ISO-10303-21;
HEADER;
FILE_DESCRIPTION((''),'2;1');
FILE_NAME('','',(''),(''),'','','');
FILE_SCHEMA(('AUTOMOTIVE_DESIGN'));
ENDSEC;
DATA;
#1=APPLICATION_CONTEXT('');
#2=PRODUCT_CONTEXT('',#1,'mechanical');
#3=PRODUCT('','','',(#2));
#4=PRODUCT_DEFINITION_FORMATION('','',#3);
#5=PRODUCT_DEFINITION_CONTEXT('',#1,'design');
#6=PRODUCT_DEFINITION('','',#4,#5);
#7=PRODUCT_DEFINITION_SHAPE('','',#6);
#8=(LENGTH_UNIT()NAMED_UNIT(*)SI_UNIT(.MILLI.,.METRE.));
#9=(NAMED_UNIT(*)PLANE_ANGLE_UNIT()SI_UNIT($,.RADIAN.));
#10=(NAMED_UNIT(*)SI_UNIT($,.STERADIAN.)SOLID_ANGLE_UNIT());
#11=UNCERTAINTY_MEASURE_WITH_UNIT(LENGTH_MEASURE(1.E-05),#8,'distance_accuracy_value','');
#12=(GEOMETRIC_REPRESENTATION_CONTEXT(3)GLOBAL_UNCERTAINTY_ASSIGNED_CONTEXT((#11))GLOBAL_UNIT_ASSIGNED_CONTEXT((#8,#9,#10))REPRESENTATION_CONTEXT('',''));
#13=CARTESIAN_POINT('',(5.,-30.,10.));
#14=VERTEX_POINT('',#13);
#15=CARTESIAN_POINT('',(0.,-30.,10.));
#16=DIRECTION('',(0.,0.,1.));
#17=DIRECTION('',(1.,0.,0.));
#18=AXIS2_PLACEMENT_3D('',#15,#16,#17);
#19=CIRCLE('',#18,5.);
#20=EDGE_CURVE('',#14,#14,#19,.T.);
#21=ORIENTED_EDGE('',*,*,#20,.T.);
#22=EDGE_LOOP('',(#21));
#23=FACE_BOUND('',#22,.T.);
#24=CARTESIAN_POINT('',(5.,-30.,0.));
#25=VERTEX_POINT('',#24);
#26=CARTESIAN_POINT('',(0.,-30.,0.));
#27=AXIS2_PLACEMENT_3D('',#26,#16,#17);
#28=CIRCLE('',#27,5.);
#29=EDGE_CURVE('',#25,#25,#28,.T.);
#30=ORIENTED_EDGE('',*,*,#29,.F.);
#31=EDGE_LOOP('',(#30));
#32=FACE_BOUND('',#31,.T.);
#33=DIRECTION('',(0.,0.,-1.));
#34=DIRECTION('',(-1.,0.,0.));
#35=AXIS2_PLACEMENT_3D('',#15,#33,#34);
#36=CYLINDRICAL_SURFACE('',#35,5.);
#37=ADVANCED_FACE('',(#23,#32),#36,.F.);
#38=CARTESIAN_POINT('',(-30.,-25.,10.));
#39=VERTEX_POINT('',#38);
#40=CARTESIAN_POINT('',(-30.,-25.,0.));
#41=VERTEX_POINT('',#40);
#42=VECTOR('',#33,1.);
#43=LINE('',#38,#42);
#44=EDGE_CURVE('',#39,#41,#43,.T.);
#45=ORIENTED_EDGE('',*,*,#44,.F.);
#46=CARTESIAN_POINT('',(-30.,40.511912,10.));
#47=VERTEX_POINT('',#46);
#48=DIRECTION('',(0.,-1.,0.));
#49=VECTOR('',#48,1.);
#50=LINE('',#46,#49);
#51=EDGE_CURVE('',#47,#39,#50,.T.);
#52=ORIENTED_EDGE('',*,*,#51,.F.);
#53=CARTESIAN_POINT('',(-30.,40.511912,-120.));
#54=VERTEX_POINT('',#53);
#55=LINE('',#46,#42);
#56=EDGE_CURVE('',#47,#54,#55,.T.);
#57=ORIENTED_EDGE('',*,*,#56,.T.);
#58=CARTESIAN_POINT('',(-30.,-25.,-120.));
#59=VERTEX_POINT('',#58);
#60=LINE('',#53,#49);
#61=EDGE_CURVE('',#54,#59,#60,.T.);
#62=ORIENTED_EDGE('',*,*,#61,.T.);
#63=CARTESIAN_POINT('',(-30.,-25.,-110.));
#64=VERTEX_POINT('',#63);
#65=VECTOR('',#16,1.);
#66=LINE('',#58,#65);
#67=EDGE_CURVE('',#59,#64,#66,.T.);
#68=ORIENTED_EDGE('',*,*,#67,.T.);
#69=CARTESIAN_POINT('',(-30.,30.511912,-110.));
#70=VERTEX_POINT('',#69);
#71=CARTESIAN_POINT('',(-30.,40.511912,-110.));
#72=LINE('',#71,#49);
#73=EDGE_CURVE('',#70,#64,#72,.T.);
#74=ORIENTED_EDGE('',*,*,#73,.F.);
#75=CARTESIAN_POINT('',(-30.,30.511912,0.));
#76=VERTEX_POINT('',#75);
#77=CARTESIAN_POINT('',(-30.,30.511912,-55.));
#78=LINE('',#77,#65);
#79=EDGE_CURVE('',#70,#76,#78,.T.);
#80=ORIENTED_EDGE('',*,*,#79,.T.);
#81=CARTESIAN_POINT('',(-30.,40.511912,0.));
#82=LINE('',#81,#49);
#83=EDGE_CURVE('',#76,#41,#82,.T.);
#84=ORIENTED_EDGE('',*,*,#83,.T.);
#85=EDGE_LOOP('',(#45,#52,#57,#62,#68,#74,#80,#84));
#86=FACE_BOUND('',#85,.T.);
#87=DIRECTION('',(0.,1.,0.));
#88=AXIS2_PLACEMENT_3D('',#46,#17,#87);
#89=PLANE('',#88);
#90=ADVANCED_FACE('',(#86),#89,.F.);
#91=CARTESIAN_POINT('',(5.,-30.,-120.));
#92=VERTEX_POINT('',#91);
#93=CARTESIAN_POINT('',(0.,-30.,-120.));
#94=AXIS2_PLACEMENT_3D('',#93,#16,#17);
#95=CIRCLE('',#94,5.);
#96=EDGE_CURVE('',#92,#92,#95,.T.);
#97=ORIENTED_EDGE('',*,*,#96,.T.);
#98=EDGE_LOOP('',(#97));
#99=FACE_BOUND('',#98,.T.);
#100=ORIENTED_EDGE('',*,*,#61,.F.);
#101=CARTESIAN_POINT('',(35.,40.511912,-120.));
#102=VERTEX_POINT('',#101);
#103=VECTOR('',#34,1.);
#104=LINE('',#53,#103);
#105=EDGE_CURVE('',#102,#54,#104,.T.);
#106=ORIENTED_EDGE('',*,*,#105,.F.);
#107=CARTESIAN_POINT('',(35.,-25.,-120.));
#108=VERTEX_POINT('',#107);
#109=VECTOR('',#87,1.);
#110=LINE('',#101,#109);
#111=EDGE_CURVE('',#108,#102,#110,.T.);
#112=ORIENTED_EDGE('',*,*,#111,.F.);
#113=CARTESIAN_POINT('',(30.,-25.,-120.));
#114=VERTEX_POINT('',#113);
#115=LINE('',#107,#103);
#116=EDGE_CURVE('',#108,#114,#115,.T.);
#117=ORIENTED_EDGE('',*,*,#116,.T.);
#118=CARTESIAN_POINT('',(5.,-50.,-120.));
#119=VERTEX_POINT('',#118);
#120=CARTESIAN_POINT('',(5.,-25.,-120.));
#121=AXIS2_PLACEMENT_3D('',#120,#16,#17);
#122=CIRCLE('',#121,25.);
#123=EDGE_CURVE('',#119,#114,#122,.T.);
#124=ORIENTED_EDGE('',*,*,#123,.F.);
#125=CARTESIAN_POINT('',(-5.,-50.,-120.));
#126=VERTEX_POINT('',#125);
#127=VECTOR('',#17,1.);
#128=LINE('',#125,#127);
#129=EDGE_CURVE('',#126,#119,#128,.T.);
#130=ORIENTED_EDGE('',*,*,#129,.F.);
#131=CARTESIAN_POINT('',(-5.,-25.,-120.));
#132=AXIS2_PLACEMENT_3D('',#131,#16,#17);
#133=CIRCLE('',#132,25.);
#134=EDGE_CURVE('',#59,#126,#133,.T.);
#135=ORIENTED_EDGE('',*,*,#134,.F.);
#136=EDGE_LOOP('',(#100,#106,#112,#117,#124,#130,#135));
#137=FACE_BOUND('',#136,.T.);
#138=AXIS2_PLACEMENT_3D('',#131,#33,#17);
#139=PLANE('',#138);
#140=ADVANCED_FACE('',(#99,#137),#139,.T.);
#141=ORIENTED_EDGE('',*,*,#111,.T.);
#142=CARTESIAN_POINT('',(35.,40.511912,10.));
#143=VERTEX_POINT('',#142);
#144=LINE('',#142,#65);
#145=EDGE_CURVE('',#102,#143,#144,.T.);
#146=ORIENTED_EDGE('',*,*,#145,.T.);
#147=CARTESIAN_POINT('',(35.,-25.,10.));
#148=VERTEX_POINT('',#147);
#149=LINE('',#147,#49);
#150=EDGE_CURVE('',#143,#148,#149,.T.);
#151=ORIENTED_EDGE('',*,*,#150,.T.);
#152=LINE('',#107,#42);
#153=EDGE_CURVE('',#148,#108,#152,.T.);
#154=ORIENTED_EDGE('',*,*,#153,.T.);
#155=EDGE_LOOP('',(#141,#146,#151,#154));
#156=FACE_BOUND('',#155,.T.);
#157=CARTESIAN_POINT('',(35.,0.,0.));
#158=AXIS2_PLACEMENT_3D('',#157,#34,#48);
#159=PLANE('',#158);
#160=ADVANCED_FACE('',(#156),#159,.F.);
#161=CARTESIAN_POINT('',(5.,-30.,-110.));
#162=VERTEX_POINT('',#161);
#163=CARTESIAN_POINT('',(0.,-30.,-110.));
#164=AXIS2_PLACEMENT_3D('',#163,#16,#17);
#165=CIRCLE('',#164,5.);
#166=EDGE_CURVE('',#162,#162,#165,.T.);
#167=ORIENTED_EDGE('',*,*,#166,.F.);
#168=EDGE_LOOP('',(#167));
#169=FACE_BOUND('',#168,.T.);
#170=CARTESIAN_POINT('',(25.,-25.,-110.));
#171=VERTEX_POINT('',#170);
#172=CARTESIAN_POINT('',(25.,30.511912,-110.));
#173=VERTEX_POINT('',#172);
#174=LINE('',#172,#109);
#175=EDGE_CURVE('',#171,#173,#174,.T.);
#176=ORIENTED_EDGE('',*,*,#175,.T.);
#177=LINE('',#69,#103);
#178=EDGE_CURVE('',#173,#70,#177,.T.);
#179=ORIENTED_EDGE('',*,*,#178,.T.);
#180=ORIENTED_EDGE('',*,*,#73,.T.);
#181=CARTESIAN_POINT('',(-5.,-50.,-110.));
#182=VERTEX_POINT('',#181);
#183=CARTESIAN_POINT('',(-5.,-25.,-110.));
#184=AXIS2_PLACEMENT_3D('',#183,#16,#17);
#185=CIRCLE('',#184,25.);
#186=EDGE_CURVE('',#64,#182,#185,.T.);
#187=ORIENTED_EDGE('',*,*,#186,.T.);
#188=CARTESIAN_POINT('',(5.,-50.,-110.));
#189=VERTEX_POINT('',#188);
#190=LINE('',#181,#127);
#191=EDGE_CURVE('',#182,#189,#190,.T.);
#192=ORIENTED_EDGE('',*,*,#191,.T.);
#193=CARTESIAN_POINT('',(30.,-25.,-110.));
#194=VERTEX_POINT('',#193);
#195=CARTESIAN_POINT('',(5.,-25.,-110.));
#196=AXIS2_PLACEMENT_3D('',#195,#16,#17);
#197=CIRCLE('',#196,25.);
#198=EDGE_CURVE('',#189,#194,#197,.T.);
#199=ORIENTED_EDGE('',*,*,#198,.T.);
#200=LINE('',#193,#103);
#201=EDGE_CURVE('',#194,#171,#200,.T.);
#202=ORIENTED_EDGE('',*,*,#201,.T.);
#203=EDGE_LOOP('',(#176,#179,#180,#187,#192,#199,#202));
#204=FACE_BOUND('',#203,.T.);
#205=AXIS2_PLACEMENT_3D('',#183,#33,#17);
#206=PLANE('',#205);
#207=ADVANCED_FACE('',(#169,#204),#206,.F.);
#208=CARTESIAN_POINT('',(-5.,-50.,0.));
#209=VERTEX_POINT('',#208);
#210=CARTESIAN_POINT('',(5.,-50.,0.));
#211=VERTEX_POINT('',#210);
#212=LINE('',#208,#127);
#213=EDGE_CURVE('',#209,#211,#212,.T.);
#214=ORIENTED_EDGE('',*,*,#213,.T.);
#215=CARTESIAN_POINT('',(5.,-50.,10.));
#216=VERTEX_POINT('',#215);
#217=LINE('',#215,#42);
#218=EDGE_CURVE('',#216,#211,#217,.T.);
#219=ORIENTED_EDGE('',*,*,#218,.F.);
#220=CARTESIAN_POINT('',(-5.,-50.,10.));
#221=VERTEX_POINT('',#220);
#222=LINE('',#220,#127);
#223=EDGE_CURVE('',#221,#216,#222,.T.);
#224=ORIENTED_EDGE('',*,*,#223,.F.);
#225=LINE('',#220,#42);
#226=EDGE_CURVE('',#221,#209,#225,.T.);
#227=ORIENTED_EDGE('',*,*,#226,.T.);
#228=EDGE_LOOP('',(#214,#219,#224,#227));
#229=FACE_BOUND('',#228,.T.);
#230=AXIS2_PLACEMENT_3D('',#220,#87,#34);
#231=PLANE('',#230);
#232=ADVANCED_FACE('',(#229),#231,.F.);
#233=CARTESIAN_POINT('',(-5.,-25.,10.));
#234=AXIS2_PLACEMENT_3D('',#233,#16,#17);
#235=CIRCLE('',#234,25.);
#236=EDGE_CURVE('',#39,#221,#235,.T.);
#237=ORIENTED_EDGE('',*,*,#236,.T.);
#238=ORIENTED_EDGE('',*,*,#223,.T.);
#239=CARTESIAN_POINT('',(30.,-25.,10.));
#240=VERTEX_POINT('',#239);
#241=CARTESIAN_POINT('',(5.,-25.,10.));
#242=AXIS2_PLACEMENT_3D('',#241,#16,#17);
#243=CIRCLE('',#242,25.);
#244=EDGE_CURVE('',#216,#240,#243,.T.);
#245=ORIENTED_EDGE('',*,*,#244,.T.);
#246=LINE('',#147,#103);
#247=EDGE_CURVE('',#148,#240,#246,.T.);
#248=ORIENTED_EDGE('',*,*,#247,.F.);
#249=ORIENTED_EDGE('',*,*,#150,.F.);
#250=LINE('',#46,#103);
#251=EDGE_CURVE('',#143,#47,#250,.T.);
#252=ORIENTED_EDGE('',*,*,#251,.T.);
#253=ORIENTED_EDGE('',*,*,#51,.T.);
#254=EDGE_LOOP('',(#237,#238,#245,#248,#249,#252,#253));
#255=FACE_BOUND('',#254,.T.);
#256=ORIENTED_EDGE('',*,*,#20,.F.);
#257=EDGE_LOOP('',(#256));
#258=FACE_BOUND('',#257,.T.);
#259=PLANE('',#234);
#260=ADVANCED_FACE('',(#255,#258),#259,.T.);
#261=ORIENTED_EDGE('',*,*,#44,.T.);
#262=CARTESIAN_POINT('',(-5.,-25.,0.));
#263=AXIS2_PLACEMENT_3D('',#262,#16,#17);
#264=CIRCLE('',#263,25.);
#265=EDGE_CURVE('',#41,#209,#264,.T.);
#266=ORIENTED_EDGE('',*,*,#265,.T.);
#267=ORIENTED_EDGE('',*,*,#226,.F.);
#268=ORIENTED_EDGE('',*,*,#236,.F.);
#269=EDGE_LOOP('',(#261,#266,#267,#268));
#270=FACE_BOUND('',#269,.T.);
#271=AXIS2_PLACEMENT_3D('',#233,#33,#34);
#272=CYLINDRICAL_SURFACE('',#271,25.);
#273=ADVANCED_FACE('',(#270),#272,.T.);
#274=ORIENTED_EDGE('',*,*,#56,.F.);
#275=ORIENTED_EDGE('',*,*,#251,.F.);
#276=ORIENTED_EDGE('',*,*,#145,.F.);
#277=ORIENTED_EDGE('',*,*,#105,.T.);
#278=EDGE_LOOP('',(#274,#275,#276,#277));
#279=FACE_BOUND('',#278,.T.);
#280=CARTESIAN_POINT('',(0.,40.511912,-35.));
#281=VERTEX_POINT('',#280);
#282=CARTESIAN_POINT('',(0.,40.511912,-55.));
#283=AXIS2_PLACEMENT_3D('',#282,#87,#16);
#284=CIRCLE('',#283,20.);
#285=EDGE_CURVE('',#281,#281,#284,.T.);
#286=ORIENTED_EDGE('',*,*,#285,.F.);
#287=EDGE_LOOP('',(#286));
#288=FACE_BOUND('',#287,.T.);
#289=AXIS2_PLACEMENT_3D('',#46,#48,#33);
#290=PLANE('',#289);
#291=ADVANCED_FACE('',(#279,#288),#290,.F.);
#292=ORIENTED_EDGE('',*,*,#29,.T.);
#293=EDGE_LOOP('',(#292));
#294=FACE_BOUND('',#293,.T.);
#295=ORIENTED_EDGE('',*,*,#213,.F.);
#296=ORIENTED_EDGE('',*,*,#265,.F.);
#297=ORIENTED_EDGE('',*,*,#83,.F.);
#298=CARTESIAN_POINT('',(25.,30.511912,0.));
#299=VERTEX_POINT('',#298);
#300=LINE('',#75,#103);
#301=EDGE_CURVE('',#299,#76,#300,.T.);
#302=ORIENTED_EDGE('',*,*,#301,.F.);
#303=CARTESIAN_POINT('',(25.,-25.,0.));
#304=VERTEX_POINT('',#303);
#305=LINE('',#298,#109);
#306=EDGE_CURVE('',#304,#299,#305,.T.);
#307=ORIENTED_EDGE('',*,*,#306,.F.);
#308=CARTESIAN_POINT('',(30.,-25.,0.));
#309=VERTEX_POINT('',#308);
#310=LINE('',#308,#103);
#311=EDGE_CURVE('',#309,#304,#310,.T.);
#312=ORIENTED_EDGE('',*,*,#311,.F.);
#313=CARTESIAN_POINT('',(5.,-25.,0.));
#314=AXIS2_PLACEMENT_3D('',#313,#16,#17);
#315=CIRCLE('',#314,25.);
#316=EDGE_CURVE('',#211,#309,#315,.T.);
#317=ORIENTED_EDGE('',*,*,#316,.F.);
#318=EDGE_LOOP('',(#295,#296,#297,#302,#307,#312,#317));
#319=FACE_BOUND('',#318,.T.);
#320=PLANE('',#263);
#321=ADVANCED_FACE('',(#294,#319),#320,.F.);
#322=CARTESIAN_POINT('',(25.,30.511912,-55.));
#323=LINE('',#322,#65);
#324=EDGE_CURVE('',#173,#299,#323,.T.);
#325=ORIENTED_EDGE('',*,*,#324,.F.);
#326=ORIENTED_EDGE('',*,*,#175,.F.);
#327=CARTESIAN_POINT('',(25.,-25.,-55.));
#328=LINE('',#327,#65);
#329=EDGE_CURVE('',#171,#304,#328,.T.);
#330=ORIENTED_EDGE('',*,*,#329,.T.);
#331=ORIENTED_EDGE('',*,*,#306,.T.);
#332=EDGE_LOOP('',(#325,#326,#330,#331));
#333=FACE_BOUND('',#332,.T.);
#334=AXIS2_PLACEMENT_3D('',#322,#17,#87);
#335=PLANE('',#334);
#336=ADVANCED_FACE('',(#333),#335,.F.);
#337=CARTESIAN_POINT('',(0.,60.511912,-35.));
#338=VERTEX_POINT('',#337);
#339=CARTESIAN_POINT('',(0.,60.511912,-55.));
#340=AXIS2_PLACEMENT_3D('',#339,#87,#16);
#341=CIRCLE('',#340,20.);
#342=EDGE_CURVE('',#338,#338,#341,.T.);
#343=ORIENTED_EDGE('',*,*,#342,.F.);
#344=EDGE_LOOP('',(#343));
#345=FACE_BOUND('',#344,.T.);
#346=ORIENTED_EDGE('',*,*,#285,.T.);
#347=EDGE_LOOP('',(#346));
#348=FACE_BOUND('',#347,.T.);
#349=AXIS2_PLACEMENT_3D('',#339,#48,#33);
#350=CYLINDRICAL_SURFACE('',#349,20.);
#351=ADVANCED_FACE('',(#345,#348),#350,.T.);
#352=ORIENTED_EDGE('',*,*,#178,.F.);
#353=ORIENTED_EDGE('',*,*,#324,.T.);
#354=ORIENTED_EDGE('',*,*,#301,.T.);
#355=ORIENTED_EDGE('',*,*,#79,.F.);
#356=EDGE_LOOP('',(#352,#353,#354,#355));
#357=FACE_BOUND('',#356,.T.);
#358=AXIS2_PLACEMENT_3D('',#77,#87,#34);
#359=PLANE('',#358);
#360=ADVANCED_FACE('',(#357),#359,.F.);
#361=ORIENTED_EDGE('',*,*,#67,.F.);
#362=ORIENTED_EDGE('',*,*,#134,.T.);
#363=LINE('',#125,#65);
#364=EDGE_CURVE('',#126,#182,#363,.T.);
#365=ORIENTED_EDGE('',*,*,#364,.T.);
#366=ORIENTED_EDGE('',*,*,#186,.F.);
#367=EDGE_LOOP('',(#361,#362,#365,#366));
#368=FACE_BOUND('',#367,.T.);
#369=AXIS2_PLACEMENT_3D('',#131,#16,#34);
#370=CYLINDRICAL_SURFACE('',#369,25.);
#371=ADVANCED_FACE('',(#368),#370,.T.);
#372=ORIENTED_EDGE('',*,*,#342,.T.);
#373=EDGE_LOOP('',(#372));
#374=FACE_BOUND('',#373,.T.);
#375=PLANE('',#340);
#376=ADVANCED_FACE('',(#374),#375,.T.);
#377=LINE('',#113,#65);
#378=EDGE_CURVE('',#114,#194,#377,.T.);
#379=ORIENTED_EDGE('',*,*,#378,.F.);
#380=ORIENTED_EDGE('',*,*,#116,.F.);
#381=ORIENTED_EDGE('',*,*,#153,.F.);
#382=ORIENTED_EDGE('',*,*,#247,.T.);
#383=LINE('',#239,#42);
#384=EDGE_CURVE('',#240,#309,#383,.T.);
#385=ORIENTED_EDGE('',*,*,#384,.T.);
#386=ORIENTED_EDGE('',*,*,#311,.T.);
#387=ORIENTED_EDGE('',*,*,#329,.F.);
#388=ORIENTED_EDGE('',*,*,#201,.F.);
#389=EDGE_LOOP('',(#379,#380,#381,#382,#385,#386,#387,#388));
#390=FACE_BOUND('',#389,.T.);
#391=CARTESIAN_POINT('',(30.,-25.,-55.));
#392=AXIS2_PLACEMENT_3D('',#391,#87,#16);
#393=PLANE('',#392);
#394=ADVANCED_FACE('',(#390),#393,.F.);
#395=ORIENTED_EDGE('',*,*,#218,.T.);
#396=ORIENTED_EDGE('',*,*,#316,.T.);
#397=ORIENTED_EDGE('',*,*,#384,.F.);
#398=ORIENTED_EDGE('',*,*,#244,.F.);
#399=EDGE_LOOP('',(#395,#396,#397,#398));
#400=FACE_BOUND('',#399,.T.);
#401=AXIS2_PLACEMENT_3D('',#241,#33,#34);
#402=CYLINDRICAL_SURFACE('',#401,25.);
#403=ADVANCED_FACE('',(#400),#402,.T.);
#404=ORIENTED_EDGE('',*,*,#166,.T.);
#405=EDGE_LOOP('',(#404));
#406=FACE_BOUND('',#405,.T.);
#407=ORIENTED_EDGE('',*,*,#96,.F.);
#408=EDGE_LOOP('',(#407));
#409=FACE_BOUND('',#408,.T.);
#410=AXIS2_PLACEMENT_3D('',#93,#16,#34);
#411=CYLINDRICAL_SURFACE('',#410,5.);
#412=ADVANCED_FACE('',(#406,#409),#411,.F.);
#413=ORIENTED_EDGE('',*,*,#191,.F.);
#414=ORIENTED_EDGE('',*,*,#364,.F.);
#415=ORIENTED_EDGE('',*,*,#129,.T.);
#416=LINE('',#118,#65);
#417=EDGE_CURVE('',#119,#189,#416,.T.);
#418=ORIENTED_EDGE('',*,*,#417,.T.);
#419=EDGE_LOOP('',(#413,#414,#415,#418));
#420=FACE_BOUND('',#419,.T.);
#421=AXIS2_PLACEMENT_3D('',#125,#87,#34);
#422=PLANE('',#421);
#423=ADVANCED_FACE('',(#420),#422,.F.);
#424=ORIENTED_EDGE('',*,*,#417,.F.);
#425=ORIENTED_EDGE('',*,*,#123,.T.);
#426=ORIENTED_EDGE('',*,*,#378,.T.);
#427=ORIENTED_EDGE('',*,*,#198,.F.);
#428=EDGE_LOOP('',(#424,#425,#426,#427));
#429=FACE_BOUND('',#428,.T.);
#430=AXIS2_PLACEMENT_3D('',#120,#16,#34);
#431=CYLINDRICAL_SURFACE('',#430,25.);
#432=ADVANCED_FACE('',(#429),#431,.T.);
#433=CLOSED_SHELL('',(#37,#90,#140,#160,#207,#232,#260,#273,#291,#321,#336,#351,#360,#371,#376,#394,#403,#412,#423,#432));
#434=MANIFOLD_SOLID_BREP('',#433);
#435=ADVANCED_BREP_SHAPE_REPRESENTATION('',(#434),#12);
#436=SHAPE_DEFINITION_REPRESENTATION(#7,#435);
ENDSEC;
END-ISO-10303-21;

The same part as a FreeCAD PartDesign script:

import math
import FreeCAD as App
import Part
import Sketcher
Q = App.Units.Quantity

doc = App.newDocument("Part")
body = doc.addObject("PartDesign::Body", "Body")

# Sketch on XY plane
sketch1 = body.newObject("Sketcher::SketchObject", "Sketch")
sketch1.AttachmentSupport = (doc.getObject("XY_Plane"), [""])
sketch1.MapMode = "FlatFace"
sketch1.addGeometry([
    Part.LineSegment(App.Vector(30, 41, 0), App.Vector(-30, 41, 0)),  # 0
    Part.LineSegment(App.Vector(-30, 41, 0), App.Vector(-30, -25, 0)),  # 1
    Part.ArcOfCircle(Part.Circle(App.Vector(-5, -25, 0), App.Vector(0, 0, 1), 25), math.radians(180), math.radians(270)),  # 2
    Part.LineSegment(App.Vector(-5, -50, 0), App.Vector(5, -50, 0)),  # 3
    Part.ArcOfCircle(Part.Circle(App.Vector(5, -25, 0), App.Vector(0, 0, 1), 25), math.radians(-90), math.radians(0)),  # 4
    Part.LineSegment(App.Vector(30, -25, 0), App.Vector(30, 41, 0)),  # 5
    Part.Circle(App.Vector(0, -30, 0), App.Vector(0, 0, 1), 5),  # 6
], False)
sketch1.addConstraint([
    Sketcher.Constraint("Coincident", 0, 2, 1, 1),
    Sketcher.Constraint("Tangent", 1, 2, 2, 1),
    Sketcher.Constraint("Tangent", 2, 2, 3, 1),
    Sketcher.Constraint("Tangent", 3, 2, 4, 1),
    Sketcher.Constraint("Tangent", 4, 2, 5, 1),
    Sketcher.Constraint("Coincident", 5, 2, 0, 1),
    Sketcher.Constraint("Horizontal", 0),
    Sketcher.Constraint("Vertical", 1),
    Sketcher.Constraint("Horizontal", 3),
    Sketcher.Constraint("Vertical", 5),
    Sketcher.Constraint("Equal", 2, 4),
    Sketcher.Constraint("PointOnObject", 6, 3, -2),
    Sketcher.Constraint("Diameter", 6, Q("10 mm")),
    Sketcher.Constraint("Radius", 2, Q("25 mm")),
    Sketcher.Constraint("DistanceX", 0, 2, 0, 1, Q("60 mm")),
    Sketcher.Constraint("DistanceX", 2, 3, -1, 1, Q("5 mm")),
    Sketcher.Constraint("DistanceY", 2, 3, -1, 1, Q("25 mm")),
    Sketcher.Constraint("DistanceY", 6, 3, -1, 1, Q("30 mm")),
    Sketcher.Constraint("DistanceY", 1, 2, 1, 1, Q("65.511912 mm")),
])
pad1 = body.newObject("PartDesign::Pad", "Pad")
pad1.Profile = sketch1
pad1.Length = 10

# Sketch on XY plane
sketch2 = body.newObject("Sketcher::SketchObject", "Sketch001")
sketch2.AttachmentSupport = (doc.getObject("XY_Plane"), [""])
sketch2.MapMode = "FlatFace"
sketch2.addGeometry([
    Part.LineSegment(App.Vector(30, 41, 0), App.Vector(30, -25, 0)),  # 0
    Part.LineSegment(App.Vector(30, -25, 0), App.Vector(25, -25, 0)),  # 1
    Part.LineSegment(App.Vector(25, -25, 0), App.Vector(25, 31, 0)),  # 2
    Part.LineSegment(App.Vector(25, 31, 0), App.Vector(-30, 31, 0)),  # 3
    Part.LineSegment(App.Vector(-30, 31, 0), App.Vector(-30, 41, 0)),  # 4
    Part.LineSegment(App.Vector(-30, 41, 0), App.Vector(30, 41, 0)),  # 5
], False)
sketch2.addConstraint([
    Sketcher.Constraint("Coincident", 0, 2, 1, 1),
    Sketcher.Constraint("Coincident", 1, 2, 2, 1),
    Sketcher.Constraint("Coincident", 2, 2, 3, 1),
    Sketcher.Constraint("Coincident", 3, 2, 4, 1),
    Sketcher.Constraint("Coincident", 4, 2, 5, 1),
    Sketcher.Constraint("Coincident", 5, 2, 0, 1),
    Sketcher.Constraint("Vertical", 0),
    Sketcher.Constraint("Horizontal", 1),
    Sketcher.Constraint("Vertical", 2),
    Sketcher.Constraint("Horizontal", 3),
    Sketcher.Constraint("Vertical", 4),
    Sketcher.Constraint("Horizontal", 5),
    Sketcher.Constraint("DistanceX", 1, 2, 1, 1, Q("5 mm")),
    Sketcher.Constraint("DistanceX", 3, 2, 3, 1, Q("55 mm")),
    Sketcher.Constraint("DistanceY", 4, 1, 4, 2, Q("10 mm")),
    Sketcher.Constraint("DistanceX", -1, 1, 0, 2, Q("30 mm")),
    Sketcher.Constraint("DistanceY", 0, 2, -1, 1, Q("25 mm")),
    Sketcher.Constraint("DistanceY", 0, 2, 0, 1, Q("65.511912 mm")),
])
pad2 = body.newObject("PartDesign::Pad", "Pad001")
pad2.Profile = sketch2
pad2.Length = 55
pad2.Reversed = True
doc.recompute()

datumplane = body.newObject("PartDesign::Plane", "DatumPlane")
datumplane.AttachmentSupport = (doc.getObject("XY_Plane"), [""])
datumplane.MapMode = "FlatFace"
datumplane.AttachmentOffset = App.Placement(App.Vector(0, 0, -55), App.Rotation())
mirrored = body.newObject("PartDesign::Mirrored", "Mirrored")
mirrored.Originals = [pad1, pad2]
mirrored.MirrorPlane = (datumplane, [""])
body.Tip = mirrored

# Sketch on XZ plane
sketch3 = body.newObject("Sketcher::SketchObject", "Sketch002")
sketch3.AttachmentSupport = (doc.getObject("XZ_Plane"), [""])
sketch3.MapMode = "FlatFace"
sketch3.AttachmentOffset = App.Placement(App.Vector(0, 0, -40.511912), App.Rotation())
sketch3.addGeometry(Part.Circle(App.Vector(0, -55, 0), App.Vector(0, 0, 1), 20), False)
sketch3.addConstraint([
    Sketcher.Constraint("PointOnObject", 0, 3, -2),
    Sketcher.Constraint("Diameter", 0, Q("40 mm")),
    Sketcher.Constraint("DistanceY", 0, 3, -1, 1, Q("55 mm")),
])
pad3 = body.newObject("PartDesign::Pad", "Pad002")
pad3.Profile = sketch3
pad3.Length = 20
pad3.Reversed = True

# Sketch on YZ plane
sketch4 = body.newObject("Sketcher::SketchObject", "Sketch003")
sketch4.AttachmentSupport = (doc.getObject("YZ_Plane"), [""])
sketch4.MapMode = "FlatFace"
sketch4.AttachmentOffset = App.Placement(App.Vector(0, 0, 30), App.Rotation())
sketch4.addGeometry([
    Part.LineSegment(App.Vector(41, 10, 0), App.Vector(-25, 10, 0)),
    Part.LineSegment(App.Vector(-25, 10, 0), App.Vector(-25, -120, 0)),
    Part.LineSegment(App.Vector(-25, -120, 0), App.Vector(41, -120, 0)),
    Part.LineSegment(App.Vector(41, -120, 0), App.Vector(41, 10, 0)),
], False)
sketch4.addConstraint([
    Sketcher.Constraint("Coincident", 0, 2, 1, 1),
    Sketcher.Constraint("Coincident", 1, 2, 2, 1),
    Sketcher.Constraint("Coincident", 2, 2, 3, 1),
    Sketcher.Constraint("Coincident", 3, 2, 0, 1),
    Sketcher.Constraint("Horizontal", 0),
    Sketcher.Constraint("Vertical", 1),
    Sketcher.Constraint("Horizontal", 2),
    Sketcher.Constraint("Vertical", 3),
    Sketcher.Constraint("DistanceY", 1, 2, 1, 1, Q("130 mm")),
    Sketcher.Constraint("DistanceX", 0, 2, -1, 1, Q("25 mm")),
    Sketcher.Constraint("DistanceY", -1, 1, 0, 2, Q("10 mm")),
    Sketcher.Constraint("DistanceX", 0, 2, 0, 1, Q("65.511912 mm")),
])
pad4 = body.newObject("PartDesign::Pad", "Pad003")
pad4.Profile = sketch4
pad4.Length = 5

doc.recompute()
